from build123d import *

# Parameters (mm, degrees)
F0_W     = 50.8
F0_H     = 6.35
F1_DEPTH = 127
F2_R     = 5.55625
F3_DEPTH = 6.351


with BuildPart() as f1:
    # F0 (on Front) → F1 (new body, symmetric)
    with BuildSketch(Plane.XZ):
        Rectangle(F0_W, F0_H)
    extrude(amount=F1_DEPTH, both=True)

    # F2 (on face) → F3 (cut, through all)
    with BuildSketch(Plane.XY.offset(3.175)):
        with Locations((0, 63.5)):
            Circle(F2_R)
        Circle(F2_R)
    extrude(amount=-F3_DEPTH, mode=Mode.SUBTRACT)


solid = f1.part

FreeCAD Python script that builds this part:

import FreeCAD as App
import Part
import Sketcher
from FreeCAD import Vector
Q = App.Units.Quantity


def add_polygon(sketch, points):
    """Adds a closed chain of lines whose ends are joined by coincident constraints."""
    first, n = sketch.GeometryCount, len(points)
    for a, b in zip(points, points[1:] + points[:1]):
        sketch.addGeometry(Part.LineSegment(App.Vector(*a, 0), App.Vector(*b, 0)), False)
    for i in range(n):
        sketch.addConstraint(Sketcher.Constraint("Coincident", first + i, 2, first + (i + 1) % n, 1))

doc = App.newDocument("Part")
params = doc.addObject("Spreadsheet::Sheet", "Params")
for row, (alias, value) in enumerate([
    ("sketch1_width", "2 in"),
    ("sketch1_height", "0.25 in"),
    ("pad1_length", "10 in"),
    ("sketch2_diameter", "0.4375 in"),
], start=1):
    params.set(f"A{row}", alias)
    params.set(f"B{row}", "=" + value)
    params.setAlias(f"B{row}", alias)

body = doc.addObject("PartDesign::Body", "Body")

# Sketch on XZ plane
sketch1 = doc.addObject("Sketcher::SketchObject", "Sketch")
body.addObject(sketch1)
sketch1.AttachmentSupport = (doc.XZ_Plane, [""])
sketch1.MapMode = "FlatFace"
add_polygon(sketch1, [(-25.4, 3.175), (-25.4, -3.175), (25.4, -3.175), (25.4, 3.175)])  # lines 0-3
sketch1.addConstraint(Sketcher.Constraint("Vertical", 0))
sketch1.addConstraint(Sketcher.Constraint("Horizontal", 1))
sketch1.addConstraint(Sketcher.Constraint("Vertical", 2))
sketch1.addConstraint(Sketcher.Constraint("Horizontal", 3))
sketch1.addConstraint(Sketcher.Constraint("Symmetric", 0, 2, 2, 2, -1, 1))
sketch1.addConstraint(Sketcher.Constraint("DistanceX", 1, 1, 1, 2, Q("2 in")))
sketch1.addConstraint(Sketcher.Constraint("DistanceY", 0, 2, 0, 1, Q("0.25 in")))
sketch1.setExpression("Constraints[9]", "Params.sketch1_width")
sketch1.setExpression("Constraints[10]", "Params.sketch1_height")
pad1 = doc.addObject("PartDesign::Pad", "Pad")
body.addObject(pad1)
pad1.Profile = sketch1
pad1.setExpression("Length", "Params.pad1_length")
pad1.Midplane = True

# Sketch on XY plane
sketch2 = doc.addObject("Sketcher::SketchObject", "Sketch001")
body.addObject(sketch2)
sketch2.AttachmentSupport = (doc.XY_Plane, [""])
sketch2.MapMode = "FlatFace"
sketch2.AttachmentOffset = App.Placement(Vector(0, 0, 0.125 * 25.4), App.Rotation())
sketch2.addGeometry(Part.Circle(Vector(0, 63.5, 0), Vector(0, 0, 1), 5.55625), False)
sketch2.addGeometry(Part.Circle(Vector(0, 0, 0), Vector(0, 0, 1), 5.55625), False)
sketch2.addConstraint(Sketcher.Constraint("Coincident", 1, 3, -1, 1))
sketch2.addConstraint(Sketcher.Constraint("Equal", 0, 1))
sketch2.addConstraint(Sketcher.Constraint("PointOnObject", 0, 3, -2))
sketch2.addConstraint(Sketcher.Constraint("Diameter", 0, Q("0.4375 in")))
sketch2.addConstraint(Sketcher.Constraint("DistanceY", -1, 1, 0, 3, Q("2.5 in")))
sketch2.setExpression("Constraints[3]", "Params.sketch2_diameter")
pocket1 = doc.addObject("PartDesign::Pocket", "Pocket")
body.addObject(pocket1)
pocket1.Profile = sketch2
pocket1.Type = "ThroughAll"

doc.recompute()
